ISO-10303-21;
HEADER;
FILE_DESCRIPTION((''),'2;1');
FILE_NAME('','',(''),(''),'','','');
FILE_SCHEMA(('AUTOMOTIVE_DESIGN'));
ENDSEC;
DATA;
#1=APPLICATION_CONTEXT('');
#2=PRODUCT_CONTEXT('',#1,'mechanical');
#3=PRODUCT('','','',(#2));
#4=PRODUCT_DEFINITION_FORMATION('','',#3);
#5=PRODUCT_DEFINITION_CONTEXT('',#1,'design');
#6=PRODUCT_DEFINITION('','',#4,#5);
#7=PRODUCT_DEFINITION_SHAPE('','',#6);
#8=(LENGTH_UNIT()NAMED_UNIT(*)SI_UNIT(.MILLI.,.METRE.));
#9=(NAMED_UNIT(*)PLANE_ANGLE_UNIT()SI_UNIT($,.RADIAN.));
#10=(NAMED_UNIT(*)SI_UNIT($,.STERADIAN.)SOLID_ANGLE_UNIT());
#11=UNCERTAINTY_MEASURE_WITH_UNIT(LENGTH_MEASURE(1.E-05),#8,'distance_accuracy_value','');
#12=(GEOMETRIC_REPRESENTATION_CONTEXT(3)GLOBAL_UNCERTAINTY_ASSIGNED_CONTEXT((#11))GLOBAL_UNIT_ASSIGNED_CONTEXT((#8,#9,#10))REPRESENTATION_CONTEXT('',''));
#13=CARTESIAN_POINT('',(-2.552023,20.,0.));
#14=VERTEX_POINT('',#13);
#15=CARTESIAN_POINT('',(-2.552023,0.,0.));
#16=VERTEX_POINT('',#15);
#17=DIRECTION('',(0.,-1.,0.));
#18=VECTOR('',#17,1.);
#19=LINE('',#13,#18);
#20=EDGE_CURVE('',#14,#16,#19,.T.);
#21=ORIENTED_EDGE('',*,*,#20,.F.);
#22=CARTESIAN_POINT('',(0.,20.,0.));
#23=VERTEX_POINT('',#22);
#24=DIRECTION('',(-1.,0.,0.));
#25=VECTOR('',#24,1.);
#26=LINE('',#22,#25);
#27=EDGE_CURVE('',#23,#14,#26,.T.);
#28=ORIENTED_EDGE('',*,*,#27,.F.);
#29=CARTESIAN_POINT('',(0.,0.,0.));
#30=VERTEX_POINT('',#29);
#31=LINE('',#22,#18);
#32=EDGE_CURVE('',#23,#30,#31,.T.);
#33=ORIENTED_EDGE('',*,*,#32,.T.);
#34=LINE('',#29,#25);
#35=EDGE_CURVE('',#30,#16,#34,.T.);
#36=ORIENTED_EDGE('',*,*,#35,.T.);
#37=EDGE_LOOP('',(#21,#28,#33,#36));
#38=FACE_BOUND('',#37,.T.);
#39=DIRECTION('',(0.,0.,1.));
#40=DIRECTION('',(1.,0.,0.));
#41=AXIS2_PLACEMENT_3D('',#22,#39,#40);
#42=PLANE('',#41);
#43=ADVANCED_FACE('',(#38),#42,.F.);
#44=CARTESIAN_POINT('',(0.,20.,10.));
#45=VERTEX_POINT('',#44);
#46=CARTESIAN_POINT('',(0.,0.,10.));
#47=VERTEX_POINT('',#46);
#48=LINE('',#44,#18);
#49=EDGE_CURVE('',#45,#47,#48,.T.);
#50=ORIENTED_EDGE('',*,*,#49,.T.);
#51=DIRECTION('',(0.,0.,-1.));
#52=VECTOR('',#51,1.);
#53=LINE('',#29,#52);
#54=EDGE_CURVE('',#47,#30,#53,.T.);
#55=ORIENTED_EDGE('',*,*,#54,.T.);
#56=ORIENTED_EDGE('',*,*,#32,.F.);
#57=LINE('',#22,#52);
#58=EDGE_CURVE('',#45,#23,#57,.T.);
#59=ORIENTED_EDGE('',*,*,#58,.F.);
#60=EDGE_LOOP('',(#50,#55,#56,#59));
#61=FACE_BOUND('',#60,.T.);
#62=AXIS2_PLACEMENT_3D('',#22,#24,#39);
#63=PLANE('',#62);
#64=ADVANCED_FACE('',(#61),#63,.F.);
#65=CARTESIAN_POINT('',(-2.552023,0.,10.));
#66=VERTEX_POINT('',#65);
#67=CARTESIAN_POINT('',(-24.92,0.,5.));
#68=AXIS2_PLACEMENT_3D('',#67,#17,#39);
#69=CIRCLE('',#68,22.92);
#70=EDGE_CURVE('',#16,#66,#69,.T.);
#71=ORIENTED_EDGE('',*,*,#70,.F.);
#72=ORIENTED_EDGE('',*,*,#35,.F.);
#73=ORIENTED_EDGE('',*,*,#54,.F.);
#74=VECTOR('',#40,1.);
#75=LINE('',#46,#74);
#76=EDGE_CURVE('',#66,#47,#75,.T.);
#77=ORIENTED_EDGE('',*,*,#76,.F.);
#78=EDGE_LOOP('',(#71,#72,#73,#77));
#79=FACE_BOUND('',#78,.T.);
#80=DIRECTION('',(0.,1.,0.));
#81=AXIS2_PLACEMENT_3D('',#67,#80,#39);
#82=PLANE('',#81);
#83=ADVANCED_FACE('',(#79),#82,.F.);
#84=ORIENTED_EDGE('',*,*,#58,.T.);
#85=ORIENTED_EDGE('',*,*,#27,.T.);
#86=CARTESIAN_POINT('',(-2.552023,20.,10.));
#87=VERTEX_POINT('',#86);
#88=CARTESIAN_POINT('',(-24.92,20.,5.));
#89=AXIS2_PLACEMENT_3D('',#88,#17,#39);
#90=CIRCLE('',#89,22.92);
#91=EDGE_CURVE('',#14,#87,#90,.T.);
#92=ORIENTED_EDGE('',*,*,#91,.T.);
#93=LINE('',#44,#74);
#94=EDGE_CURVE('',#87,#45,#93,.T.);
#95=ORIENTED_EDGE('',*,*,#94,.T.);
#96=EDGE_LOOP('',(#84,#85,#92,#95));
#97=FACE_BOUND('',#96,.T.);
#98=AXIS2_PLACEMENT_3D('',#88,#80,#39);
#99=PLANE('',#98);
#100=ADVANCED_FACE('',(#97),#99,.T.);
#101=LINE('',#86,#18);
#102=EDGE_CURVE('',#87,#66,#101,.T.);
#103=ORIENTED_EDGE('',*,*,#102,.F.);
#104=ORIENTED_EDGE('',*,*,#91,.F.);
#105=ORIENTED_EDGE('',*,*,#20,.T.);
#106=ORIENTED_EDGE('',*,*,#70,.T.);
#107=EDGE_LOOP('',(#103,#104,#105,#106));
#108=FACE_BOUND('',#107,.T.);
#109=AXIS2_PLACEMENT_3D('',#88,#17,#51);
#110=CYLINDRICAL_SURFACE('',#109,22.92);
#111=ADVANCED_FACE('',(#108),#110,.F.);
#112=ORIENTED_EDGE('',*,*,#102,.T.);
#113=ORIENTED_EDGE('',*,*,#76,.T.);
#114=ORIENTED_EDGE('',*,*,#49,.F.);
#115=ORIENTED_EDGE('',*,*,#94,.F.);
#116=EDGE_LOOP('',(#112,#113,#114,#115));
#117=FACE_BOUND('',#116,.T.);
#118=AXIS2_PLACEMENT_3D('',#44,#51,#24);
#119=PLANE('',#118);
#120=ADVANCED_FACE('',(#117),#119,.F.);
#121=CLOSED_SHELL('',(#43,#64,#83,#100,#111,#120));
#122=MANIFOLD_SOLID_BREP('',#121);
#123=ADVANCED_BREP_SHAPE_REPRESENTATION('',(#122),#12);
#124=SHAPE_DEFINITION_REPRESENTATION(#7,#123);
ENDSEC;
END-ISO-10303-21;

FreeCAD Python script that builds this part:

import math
import FreeCAD as App
import Part
import Sketcher
from FreeCAD import Vector

doc = App.newDocument("Part")
body = doc.addObject("PartDesign::Body", "Body")

# Sketch on XZ plane
sketch1 = doc.addObject("Sketcher::SketchObject", "Sketch")
body.addObject(sketch1)
sketch1.AttachmentSupport = (doc.XZ_Plane, [""])
sketch1.MapMode = "FlatFace"
sketch1.addGeometry(Part.LineSegment(Vector(0, 10, 0), Vector(0, 0, 0)), False)
sketch1.addGeometry(Part.LineSegment(Vector(0, 0, 0), Vector(-2.552023, 0, 0)), False)
sketch1.addGeometry(Part.ArcOfCircle(Part.Circle(Vector(-24.92, 5, 0), Vector(0, 0, 1), 22.92), math.radians(-12.600402), math.radians(12.600402)), False)
sketch1.addGeometry(Part.LineSegment(Vector(-2.552023, 10, 0), Vector(0, 10, 0)), False)
sketch1.addConstraint(Sketcher.Constraint("Coincident", 0, 2, 1, 1))
sketch1.addConstraint(Sketcher.Constraint("Coincident", 1, 2, 2, 1))
sketch1.addConstraint(Sketcher.Constraint("Coincident", 2, 2, 3, 1))
sketch1.addConstraint(Sketcher.Constraint("Coincident", 3, 2, 0, 1))
sketch1.addConstraint(Sketcher.Constraint("Vertical", 0))
sketch1.addConstraint(Sketcher.Constraint("Horizontal", 1))
sketch1.addConstraint(Sketcher.Constraint("Horizontal", 3))
sketch1.addConstraint(Sketcher.Constraint("Coincident", 0, 2, -1, 1))
sketch1.addConstraint(Sketcher.Constraint("Vertical", 1, 2, 2, 2))
sketch1.addConstraint(Sketcher.Constraint("DistanceY", 0, 2, 0, 1, 10.0))
sketch1.addConstraint(Sketcher.Constraint("Radius", 2, 22.92))
sketch1.addConstraint(Sketcher.Constraint("DistanceX", 2, 3, -1, 1, 24.92))
pad1 = doc.addObject("PartDesign::Pad", "Pad")
body.addObject(pad1)
pad1.Profile = sketch1
pad1.Length = 20
pad1.Reversed = True

doc.recompute()
